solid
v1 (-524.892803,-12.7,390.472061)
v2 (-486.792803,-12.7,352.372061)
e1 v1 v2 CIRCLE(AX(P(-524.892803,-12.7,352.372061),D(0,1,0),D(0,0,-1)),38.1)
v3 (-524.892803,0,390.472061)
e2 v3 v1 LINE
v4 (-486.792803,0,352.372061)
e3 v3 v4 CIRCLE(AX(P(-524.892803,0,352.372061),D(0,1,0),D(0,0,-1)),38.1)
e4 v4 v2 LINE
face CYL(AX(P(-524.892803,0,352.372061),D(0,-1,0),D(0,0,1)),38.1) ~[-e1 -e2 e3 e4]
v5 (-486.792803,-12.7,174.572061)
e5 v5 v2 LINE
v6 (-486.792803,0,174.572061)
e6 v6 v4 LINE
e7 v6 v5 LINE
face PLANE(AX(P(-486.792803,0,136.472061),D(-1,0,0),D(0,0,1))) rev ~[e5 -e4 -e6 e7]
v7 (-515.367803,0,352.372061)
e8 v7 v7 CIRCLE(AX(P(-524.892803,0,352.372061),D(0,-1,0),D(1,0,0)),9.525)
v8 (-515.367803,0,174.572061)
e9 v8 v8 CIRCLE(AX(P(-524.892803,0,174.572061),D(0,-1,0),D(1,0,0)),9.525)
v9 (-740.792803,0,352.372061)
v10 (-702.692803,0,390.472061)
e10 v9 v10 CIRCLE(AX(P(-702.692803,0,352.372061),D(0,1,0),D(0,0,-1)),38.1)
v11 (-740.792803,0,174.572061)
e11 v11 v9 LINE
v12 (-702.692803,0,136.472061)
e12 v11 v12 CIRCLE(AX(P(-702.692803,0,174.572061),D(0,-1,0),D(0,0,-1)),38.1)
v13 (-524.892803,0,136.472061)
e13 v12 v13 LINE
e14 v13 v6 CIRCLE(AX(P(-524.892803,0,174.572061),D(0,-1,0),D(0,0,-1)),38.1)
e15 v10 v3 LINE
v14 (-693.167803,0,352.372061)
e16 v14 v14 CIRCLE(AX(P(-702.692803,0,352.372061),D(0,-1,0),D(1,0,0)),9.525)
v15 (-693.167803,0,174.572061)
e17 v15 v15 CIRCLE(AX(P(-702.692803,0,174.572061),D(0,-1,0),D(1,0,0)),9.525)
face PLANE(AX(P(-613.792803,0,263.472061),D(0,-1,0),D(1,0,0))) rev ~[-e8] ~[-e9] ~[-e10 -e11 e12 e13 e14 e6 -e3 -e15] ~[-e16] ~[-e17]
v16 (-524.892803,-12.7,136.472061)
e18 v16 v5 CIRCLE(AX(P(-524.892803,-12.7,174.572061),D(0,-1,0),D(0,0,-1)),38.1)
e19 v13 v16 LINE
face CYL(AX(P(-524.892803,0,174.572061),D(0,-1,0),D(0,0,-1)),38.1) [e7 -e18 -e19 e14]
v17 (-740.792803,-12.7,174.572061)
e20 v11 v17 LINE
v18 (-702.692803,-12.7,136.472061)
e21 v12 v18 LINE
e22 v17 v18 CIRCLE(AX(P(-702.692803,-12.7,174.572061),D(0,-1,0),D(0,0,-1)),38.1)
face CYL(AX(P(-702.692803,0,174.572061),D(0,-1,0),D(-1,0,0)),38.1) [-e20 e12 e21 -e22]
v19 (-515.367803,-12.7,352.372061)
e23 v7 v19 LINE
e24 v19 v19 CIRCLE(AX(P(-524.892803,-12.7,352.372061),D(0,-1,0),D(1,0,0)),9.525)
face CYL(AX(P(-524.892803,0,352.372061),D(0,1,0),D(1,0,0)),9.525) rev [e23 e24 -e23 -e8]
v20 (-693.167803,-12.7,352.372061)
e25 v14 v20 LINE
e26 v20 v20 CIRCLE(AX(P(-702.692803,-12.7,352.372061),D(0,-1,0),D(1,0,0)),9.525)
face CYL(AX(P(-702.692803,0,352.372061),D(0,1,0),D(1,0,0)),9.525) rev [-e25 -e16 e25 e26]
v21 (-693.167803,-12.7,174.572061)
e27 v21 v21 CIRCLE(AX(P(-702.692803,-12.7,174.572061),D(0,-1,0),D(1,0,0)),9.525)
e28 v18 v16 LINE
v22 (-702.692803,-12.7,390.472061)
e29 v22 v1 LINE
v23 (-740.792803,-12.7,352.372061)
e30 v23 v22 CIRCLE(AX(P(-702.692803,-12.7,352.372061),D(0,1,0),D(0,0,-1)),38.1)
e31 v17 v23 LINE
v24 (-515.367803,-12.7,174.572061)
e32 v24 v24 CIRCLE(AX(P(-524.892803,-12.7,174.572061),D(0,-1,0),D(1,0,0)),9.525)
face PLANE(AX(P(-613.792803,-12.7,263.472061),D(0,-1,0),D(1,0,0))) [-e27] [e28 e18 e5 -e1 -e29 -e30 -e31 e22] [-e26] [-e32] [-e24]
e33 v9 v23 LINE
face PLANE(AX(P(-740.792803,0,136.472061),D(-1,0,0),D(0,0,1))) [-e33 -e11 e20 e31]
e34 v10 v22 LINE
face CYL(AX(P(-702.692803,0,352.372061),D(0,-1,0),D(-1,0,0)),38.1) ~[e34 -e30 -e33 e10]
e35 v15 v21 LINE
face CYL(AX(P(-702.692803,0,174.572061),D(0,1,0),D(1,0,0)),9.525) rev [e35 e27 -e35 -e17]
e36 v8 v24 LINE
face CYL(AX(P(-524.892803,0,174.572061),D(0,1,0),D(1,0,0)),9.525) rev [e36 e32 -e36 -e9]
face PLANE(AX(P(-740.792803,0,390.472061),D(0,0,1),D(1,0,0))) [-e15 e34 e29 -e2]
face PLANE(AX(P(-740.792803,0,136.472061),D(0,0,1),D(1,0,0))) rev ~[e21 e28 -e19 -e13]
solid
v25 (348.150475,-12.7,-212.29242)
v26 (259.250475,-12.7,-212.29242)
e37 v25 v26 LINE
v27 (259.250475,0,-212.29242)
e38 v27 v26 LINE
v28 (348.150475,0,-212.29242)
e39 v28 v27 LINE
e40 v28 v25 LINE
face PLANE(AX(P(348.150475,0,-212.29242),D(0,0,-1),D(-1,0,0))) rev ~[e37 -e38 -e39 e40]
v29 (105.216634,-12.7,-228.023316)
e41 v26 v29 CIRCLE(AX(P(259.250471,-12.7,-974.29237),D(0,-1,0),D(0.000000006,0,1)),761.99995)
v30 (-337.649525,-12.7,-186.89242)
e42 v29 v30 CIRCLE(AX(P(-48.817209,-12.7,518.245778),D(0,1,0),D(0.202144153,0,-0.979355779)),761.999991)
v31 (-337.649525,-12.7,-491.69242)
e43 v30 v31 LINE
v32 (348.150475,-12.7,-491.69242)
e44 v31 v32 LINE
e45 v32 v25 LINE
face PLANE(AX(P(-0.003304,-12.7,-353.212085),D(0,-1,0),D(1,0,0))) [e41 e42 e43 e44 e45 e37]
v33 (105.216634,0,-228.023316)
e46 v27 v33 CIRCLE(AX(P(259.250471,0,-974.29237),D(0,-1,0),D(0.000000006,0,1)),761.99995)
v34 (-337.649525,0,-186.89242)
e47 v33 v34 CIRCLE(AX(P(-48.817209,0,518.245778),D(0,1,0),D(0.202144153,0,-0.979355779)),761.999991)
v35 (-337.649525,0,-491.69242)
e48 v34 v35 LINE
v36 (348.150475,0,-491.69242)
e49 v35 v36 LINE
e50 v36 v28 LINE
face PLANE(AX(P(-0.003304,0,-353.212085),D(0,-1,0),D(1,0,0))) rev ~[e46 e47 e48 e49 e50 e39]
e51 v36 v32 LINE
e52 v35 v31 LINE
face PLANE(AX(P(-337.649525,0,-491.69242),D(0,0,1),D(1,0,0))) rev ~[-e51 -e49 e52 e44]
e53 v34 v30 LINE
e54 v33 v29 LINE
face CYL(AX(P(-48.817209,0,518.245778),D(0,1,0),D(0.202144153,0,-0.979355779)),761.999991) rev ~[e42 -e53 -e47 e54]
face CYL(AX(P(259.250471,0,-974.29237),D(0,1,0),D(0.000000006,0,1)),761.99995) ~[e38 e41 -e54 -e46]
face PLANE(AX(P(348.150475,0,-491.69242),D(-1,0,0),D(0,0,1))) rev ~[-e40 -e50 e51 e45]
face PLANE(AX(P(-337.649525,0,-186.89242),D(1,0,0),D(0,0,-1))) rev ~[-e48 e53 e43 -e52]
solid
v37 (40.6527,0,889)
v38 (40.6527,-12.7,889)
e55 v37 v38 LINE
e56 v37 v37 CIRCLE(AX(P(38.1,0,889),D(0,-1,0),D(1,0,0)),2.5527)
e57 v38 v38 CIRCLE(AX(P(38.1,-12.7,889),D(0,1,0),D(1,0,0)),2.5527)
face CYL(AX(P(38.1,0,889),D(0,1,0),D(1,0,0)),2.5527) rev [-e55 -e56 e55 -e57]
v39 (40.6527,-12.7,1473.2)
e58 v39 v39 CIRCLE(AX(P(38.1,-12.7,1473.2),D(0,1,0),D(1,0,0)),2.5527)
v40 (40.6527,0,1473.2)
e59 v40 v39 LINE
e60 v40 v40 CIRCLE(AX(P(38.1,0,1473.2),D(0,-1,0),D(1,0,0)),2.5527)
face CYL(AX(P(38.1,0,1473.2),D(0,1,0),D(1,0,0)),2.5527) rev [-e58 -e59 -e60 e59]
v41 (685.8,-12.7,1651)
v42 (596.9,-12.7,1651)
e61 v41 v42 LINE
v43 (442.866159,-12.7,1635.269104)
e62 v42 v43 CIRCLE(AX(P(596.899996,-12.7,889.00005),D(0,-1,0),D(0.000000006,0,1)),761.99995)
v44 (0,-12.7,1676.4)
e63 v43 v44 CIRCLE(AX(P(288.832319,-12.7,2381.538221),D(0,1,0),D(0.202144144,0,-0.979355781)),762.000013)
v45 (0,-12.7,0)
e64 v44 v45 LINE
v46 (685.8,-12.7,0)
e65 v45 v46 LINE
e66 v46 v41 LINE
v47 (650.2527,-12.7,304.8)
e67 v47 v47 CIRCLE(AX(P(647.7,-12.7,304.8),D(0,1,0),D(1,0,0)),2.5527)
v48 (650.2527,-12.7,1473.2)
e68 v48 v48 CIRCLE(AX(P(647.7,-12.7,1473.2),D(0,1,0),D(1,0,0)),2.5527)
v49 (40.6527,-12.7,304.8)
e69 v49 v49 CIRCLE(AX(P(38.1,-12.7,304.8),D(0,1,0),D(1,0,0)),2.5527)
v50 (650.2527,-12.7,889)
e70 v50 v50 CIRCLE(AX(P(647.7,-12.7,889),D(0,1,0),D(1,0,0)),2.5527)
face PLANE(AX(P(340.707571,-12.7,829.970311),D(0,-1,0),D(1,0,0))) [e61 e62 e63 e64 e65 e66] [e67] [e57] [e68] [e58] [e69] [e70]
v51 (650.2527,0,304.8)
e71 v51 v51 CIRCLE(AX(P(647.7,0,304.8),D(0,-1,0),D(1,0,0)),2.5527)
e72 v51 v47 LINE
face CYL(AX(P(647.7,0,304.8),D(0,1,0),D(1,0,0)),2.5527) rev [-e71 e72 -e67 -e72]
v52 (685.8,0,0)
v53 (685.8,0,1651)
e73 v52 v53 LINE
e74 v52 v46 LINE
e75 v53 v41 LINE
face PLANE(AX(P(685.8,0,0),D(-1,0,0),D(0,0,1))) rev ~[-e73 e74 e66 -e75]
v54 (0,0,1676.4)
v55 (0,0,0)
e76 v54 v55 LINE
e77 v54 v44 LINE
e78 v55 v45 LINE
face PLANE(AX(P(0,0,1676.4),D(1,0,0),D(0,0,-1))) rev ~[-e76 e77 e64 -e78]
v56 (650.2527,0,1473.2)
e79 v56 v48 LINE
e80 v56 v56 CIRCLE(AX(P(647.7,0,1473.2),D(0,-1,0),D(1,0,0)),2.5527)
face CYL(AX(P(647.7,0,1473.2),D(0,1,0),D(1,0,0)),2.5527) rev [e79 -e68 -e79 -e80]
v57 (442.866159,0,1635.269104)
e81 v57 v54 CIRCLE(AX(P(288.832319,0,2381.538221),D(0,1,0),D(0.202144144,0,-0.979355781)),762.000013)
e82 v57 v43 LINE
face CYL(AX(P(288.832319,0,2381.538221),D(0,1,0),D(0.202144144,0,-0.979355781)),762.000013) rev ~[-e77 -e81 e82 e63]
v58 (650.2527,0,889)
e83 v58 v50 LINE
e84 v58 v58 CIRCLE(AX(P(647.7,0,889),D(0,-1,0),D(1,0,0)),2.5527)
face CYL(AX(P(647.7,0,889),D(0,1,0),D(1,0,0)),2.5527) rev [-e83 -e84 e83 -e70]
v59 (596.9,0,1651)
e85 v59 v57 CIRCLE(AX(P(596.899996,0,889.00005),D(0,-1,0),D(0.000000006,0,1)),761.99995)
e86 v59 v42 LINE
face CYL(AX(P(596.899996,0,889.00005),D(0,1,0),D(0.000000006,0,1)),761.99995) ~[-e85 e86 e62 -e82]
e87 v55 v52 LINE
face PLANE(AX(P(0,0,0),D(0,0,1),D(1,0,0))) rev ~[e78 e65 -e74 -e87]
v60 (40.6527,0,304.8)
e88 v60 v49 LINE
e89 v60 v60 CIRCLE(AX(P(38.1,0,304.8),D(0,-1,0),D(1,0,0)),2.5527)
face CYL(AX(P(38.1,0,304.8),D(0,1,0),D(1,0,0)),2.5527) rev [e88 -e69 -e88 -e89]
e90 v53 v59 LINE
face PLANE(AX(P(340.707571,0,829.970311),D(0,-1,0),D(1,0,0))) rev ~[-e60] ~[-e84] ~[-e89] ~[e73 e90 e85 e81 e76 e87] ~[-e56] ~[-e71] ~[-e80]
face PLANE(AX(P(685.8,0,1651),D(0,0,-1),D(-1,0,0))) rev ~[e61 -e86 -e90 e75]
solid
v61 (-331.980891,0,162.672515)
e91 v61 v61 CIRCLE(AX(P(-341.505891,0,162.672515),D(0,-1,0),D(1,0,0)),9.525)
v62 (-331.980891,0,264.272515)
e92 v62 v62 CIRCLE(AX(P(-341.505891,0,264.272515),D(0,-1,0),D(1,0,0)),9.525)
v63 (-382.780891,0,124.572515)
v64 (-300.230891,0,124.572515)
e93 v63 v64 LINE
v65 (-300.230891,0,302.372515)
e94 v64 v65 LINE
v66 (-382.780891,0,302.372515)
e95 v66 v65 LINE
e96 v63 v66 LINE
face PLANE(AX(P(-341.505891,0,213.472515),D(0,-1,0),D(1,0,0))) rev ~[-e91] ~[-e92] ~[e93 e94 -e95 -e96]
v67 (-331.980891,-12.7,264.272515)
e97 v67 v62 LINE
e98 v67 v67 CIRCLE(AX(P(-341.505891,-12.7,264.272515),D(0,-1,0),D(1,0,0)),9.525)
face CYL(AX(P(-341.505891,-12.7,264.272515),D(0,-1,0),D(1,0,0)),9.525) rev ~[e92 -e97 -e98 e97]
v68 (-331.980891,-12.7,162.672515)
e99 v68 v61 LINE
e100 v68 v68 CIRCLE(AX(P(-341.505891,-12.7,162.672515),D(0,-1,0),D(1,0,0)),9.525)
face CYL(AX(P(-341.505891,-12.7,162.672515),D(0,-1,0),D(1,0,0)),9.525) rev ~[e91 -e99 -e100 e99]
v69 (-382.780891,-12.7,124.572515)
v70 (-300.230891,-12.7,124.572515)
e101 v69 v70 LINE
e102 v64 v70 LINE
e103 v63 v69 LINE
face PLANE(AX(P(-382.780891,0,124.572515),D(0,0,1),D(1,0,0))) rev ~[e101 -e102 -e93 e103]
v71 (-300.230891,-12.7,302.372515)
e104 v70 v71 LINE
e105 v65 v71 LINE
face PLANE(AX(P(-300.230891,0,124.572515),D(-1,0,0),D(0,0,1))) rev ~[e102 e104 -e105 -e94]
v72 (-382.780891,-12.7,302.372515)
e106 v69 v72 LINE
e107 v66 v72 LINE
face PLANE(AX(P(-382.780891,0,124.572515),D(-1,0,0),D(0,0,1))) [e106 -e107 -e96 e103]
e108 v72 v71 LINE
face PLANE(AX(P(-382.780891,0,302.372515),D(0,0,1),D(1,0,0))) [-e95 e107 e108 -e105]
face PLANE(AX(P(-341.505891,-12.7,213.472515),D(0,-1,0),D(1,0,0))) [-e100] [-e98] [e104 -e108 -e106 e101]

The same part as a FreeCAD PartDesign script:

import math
import FreeCAD as App
import Part
import Sketcher
Q = App.Units.Quantity


def edges_at(feature, points):
    """Names of the edges that pass closest to the given points."""
    edges = feature.Shape.Edges
    near = lambda p: min(range(len(edges)), key=lambda i: edges[i].distToShape(Part.Vertex(*p))[0])
    return sorted({f"Edge{near(p) + 1}" for p in points})


def add_polygon(sketch, points):
    """Adds a closed chain of lines whose ends are joined by coincident constraints."""
    first, n = sketch.GeometryCount, len(points)
    for a, b in zip(points, points[1:] + points[:1]):
        sketch.addGeometry(Part.LineSegment(App.Vector(*a, 0), App.Vector(*b, 0)), False)
    for i in range(n):
        sketch.addConstraint(Sketcher.Constraint("Coincident", first + i, 2, first + (i + 1) % n, 1))

doc = App.newDocument("Part")
body = doc.addObject("PartDesign::Body", "Body")

sketch1 = doc.addObject("Sketcher::SketchObject", "Sketch")
body.addObject(sketch1)
sketch1.AttachmentSupport = (doc.XZ_Plane, [""])
sketch1.MapMode = "FlatFace"
sketch1.addGeometry([
    Part.LineSegment(App.Vector(0, 0, 0), App.Vector(686, 0, 0)),
    Part.LineSegment(App.Vector(686, 0, 0), App.Vector(686, 1651, 0)),
    Part.LineSegment(App.Vector(686, 1651, 0), App.Vector(597, 1651, 0)),
    Part.ArcOfCircle(Part.Circle(App.Vector(597, 889, 0), App.Vector(0, 0, 1), 762), math.radians(90), math.radians(101.66)),
    Part.ArcOfCircle(Part.Circle(App.Vector(289, 2382, 0), App.Vector(0, 0, 1), 762), math.radians(-112), math.radians(-78)),
    Part.LineSegment(App.Vector(0, 1676, 0), App.Vector(0, 0, 0)),
], False)
sketch1.addConstraint([
    Sketcher.Constraint("Coincident", 0, 2, 1, 1),
    Sketcher.Constraint("Coincident", 1, 2, 2, 1),
    Sketcher.Constraint("Tangent", 2, 2, 3, 1),
    Sketcher.Constraint("Tangent", 3, 2, 4, 2),
    Sketcher.Constraint("Coincident", 4, 1, 5, 1),
    Sketcher.Constraint("Coincident", 5, 2, 0, 1),
    Sketcher.Constraint("Horizontal", 0),
    Sketcher.Constraint("Vertical", 1),
    Sketcher.Constraint("Horizontal", 2),
    Sketcher.Constraint("Vertical", 5),
    Sketcher.Constraint("Coincident", 5, 2, -1, 1),
    Sketcher.Constraint("DistanceX", 0, 1, 0, 2, Q("27 in")),
    Sketcher.Constraint("DistanceY", 1, 1, 1, 2, Q("65 in")),
    Sketcher.Constraint("DistanceY", 5, 2, 5, 1, Q("66 in")),
    Sketcher.Constraint("DistanceX", 2, 2, 2, 1, Q("3.5 in")),
    Sketcher.Constraint("Radius", 3, Q("761.99995 mm")),
    Sketcher.Constraint("Radius", 4, Q("762.000013 mm")),
])
pad1 = doc.addObject("PartDesign::Pad", "Pad")
body.addObject(pad1)
pad1.Profile = sketch1
pad1.Length = Q("0.5 in")

sketch2 = doc.addObject("Sketcher::SketchObject", "Sketch001")
body.addObject(sketch2)
sketch2.AttachmentSupport = (doc.XZ_Plane, [""])
sketch2.MapMode = "FlatFace"
sketch2.addGeometry([
    Part.Circle(App.Vector(38.1, 1473.2, 0), App.Vector(0, 0, 1), 2.6),
    Part.Circle(App.Vector(38.1, 889, 0), App.Vector(0, 0, 1), 2.6),
    Part.Circle(App.Vector(38.1, 304.8, 0), App.Vector(0, 0, 1), 2.6),
    Part.Circle(App.Vector(647.7, 1473.2, 0), App.Vector(0, 0, 1), 2.6),
    Part.Circle(App.Vector(647.7, 889, 0), App.Vector(0, 0, 1), 2.6),
    Part.Circle(App.Vector(647.7, 304.8, 0), App.Vector(0, 0, 1), 2.6),
], False)
sketch2.addConstraint([
    Sketcher.Constraint("Equal", 0, 1),
    Sketcher.Constraint("Equal", 1, 2),
    Sketcher.Constraint("Equal", 2, 3),
    Sketcher.Constraint("Equal", 3, 4),
    Sketcher.Constraint("Equal", 4, 5),
    Sketcher.Constraint("Horizontal", 0, 3, 3, 3),
    Sketcher.Constraint("Horizontal", 1, 3, 4, 3),
    Sketcher.Constraint("Horizontal", 2, 3, 5, 3),
    Sketcher.Constraint("Vertical", 0, 3, 1, 3),
    Sketcher.Constraint("Vertical", 1, 3, 2, 3),
    Sketcher.Constraint("Vertical", 3, 3, 4, 3),
    Sketcher.Constraint("Vertical", 4, 3, 5, 3),
    Sketcher.Constraint("Diameter", 0, Q("0.201 in")),
    Sketcher.Constraint("DistanceY", -1, 1, 0, 3, Q("58 in")),
    Sketcher.Constraint("DistanceY", -1, 1, 1, 3, Q("35 in")),
    Sketcher.Constraint("DistanceY", -1, 1, 2, 3, Q("12 in")),
    Sketcher.Constraint("DistanceX", 0, 3, 3, 3, Q("24 in")),
    Sketcher.Constraint("DistanceX", -1, 1, 0, 3, Q("1.5 in")),
])
pocket1 = doc.addObject("PartDesign::Pocket", "Pocket")
body.addObject(pocket1)
pocket1.Profile = sketch2
pocket1.Type = "ThroughAll"
pocket1.Reversed = True
body2 = doc.addObject("PartDesign::Body", "Body001")

sketch3 = doc.addObject("Sketcher::SketchObject", "Sketch002")
body2.addObject(sketch3)
sketch3.AttachmentSupport = (doc.getObject("XZ_Plane001"), [""])
sketch3.MapMode = "FlatFace"
add_polygon(sketch3, [(-741, 390), (-741, 136), (-487, 136), (-487, 390)])
sketch3.addGeometry(Part.Circle(App.Vector(-703, 175, 0), App.Vector(0, 0, 1), 10), False)
sketch3.addGeometry(Part.Circle(App.Vector(-525, 175, 0), App.Vector(0, 0, 1), 10), False)
sketch3.addGeometry(Part.Circle(App.Vector(-703, 352, 0), App.Vector(0, 0, 1), 10), False)
sketch3.addGeometry(Part.Circle(App.Vector(-525, 352, 0), App.Vector(0, 0, 1), 10), False)
sketch3.addConstraint([
    Sketcher.Constraint("Vertical", 0),
    Sketcher.Constraint("Horizontal", 1),
    Sketcher.Constraint("Vertical", 2),
    Sketcher.Constraint("Horizontal", 3),
    Sketcher.Constraint("Equal", 4, 5),
    Sketcher.Constraint("Equal", 5, 6),
    Sketcher.Constraint("Equal", 6, 7),
    Sketcher.Constraint("Horizontal", 4, 3, 5, 3),
    Sketcher.Constraint("Horizontal", 6, 3, 7, 3),
    Sketcher.Constraint("Vertical", 4, 3, 6, 3),
    Sketcher.Constraint("Vertical", 5, 3, 7, 3),
    Sketcher.Constraint("Equal", 3, 0),
    Sketcher.Constraint("Diameter", 4, Q("0.75 in")),
    Sketcher.Constraint("DistanceX", 1, 1, 1, 2, Q("10 in")),
    Sketcher.Constraint("DistanceX", 4, 3, 5, 3, Q("7 in")),
    Sketcher.Constraint("DistanceY", 4, 3, 6, 3, Q("7 in")),
    Sketcher.Constraint("DistanceX", 0, 2, 4, 3, Q("1.5 in")),
    Sketcher.Constraint("DistanceY", 0, 2, 4, 3, Q("1.5 in")),
    Sketcher.Constraint("DistanceY", -1, 1, 4, 3, Q("174.572061 mm")),
    Sketcher.Constraint("DistanceX", 4, 3, -1, 1, Q("702.692803 mm")),
])
pad2 = doc.addObject("PartDesign::Pad", "Pad001")
body2.addObject(pad2)
pad2.Profile = sketch3
pad2.Length = Q("0.5 in")
doc.recompute()

fillet = doc.addObject("PartDesign::Fillet", "Fillet")
body2.addObject(fillet)
fillet.Base = (pad2, edges_at(pad2, [
    (-486.793, -6.35, 390.472),
    (-740.793, -6.35, 390.472),
    (-486.793, -6.35, 136.472),
    (-740.793, -6.35, 136.472),
]))
fillet.Radius = Q("1.5 in")
body3 = doc.addObject("PartDesign::Body", "Body002")

sketch4 = doc.addObject("Sketcher::SketchObject", "Sketch003")
body3.addObject(sketch4)
sketch4.AttachmentSupport = (doc.getObject("XZ_Plane002"), [""])
sketch4.MapMode = "FlatFace"
add_polygon(sketch4, [(-383, 302), (-383, 125), (-300, 125), (-300, 302)])
sketch4.addConstraint([
    Sketcher.Constraint("Vertical", 0),
    Sketcher.Constraint("Horizontal", 1),
    Sketcher.Constraint("Vertical", 2),
    Sketcher.Constraint("Horizontal", 3),
    Sketcher.Constraint("DistanceY", 0, 2, 0, 1, Q("7 in")),
    Sketcher.Constraint("DistanceX", 1, 1, 1, 2, Q("3.25 in")),
    Sketcher.Constraint("DistanceX", 0, 2, -1, 1, Q("382.780891 mm")),
    Sketcher.Constraint("DistanceY", -1, 1, 0, 2, Q("124.572515 mm")),
])
pad3 = doc.addObject("PartDesign::Pad", "Pad002")
body3.addObject(pad3)
pad3.Profile = sketch4
pad3.Length = Q("0.5 in")

sketch5 = doc.addObject("Sketcher::SketchObject", "Sketch004")
body3.addObject(sketch5)
sketch5.AttachmentSupport = (doc.getObject("XZ_Plane002"), [""])
sketch5.MapMode = "FlatFace"
sketch5.AttachmentOffset = App.Placement(App.Vector(0, 0, 0.5 * 25.4), App.Rotation())
sketch5.addGeometry([
    Part.Circle(App.Vector(-342, 264, 0), App.Vector(0, 0, 1), 10),
    Part.Circle(App.Vector(-342, 163, 0), App.Vector(0, 0, 1), 10),
], False)
sketch5.addConstraint([
    Sketcher.Constraint("Equal", 0, 1),
    Sketcher.Constraint("Vertical", 0, 3, 1, 3),
    Sketcher.Constraint("Diameter", 0, Q("0.75 in")),
    Sketcher.Constraint("DistanceY", 1, 3, 0, 3, Q("4 in")),
    Sketcher.Constraint("DistanceX", 0, 3, -1, 1, Q("341.505891 mm")),
    Sketcher.Constraint("DistanceY", -1, 1, 0, 3, Q("264.272515 mm")),
])
pocket2 = doc.addObject("PartDesign::Pocket", "Pocket001")
body3.addObject(pocket2)
pocket2.Profile = sketch5
pocket2.Type = "ThroughAll"
body4 = doc.addObject("PartDesign::Body", "Body003")

sketch6 = doc.addObject("Sketcher::SketchObject", "Sketch005")
body4.addObject(sketch6)
sketch6.AttachmentSupport = (doc.getObject("XZ_Plane003"), [""])
sketch6.MapMode = "FlatFace"
sketch6.addGeometry([
    Part.LineSegment(App.Vector(-338, -187, 0), App.Vector(-338, -492, 0)),
    Part.LineSegment(App.Vector(-338, -492, 0), App.Vector(348, -492, 0)),
    Part.LineSegment(App.Vector(348, -492, 0), App.Vector(348, -212, 0)),
    Part.LineSegment(App.Vector(348, -212, 0), App.Vector(259, -212, 0)),
    Part.ArcOfCircle(Part.Circle(App.Vector(259, -974, 0), App.Vector(0, 0, 1), 762), math.radians(90), math.radians(101.66)),
    Part.ArcOfCircle(Part.Circle(App.Vector(-49, 518, 0), App.Vector(0, 0, 1), 762), math.radians(-112), math.radians(-78)),
], False)
sketch6.addConstraint([
    Sketcher.Constraint("Coincident", 0, 2, 1, 1),
    Sketcher.Constraint("Coincident", 1, 2, 2, 1),
    Sketcher.Constraint("Coincident", 2, 2, 3, 1),
    Sketcher.Constraint("Tangent", 3, 2, 4, 1),
    Sketcher.Constraint("Tangent", 4, 2, 5, 2),
    Sketcher.Constraint("Coincident", 5, 1, 0, 1),
    Sketcher.Constraint("Vertical", 0),
    Sketcher.Constraint("Horizontal", 1),
    Sketcher.Constraint("Vertical", 2),
    Sketcher.Constraint("Horizontal", 3),
    Sketcher.Constraint("DistanceX", 1, 1, 1, 2, Q("27 in")),
    Sketcher.Constraint("DistanceY", 0, 2, 0, 1, Q("12 in")),
    Sketcher.Constraint("DistanceY", 2, 1, 2, 2, Q("11 in")),
    Sketcher.Constraint("DistanceX", 3, 2, 3, 1, Q("3.5 in")),
    Sketcher.Constraint("Radius", 4, Q("761.99995 mm")),
    Sketcher.Constraint("Radius", 5, Q("761.999991 mm")),
    Sketcher.Constraint("DistanceX", -1, 1, 4, 3, Q("259.250471 mm")),
    Sketcher.Constraint("DistanceY", 4, 3, -1, 1, Q("974.29237 mm")),
])
pad4 = doc.addObject("PartDesign::Pad", "Pad003")
body4.addObject(pad4)
pad4.Profile = sketch6
pad4.Length = Q("0.5 in")

doc.recompute()
